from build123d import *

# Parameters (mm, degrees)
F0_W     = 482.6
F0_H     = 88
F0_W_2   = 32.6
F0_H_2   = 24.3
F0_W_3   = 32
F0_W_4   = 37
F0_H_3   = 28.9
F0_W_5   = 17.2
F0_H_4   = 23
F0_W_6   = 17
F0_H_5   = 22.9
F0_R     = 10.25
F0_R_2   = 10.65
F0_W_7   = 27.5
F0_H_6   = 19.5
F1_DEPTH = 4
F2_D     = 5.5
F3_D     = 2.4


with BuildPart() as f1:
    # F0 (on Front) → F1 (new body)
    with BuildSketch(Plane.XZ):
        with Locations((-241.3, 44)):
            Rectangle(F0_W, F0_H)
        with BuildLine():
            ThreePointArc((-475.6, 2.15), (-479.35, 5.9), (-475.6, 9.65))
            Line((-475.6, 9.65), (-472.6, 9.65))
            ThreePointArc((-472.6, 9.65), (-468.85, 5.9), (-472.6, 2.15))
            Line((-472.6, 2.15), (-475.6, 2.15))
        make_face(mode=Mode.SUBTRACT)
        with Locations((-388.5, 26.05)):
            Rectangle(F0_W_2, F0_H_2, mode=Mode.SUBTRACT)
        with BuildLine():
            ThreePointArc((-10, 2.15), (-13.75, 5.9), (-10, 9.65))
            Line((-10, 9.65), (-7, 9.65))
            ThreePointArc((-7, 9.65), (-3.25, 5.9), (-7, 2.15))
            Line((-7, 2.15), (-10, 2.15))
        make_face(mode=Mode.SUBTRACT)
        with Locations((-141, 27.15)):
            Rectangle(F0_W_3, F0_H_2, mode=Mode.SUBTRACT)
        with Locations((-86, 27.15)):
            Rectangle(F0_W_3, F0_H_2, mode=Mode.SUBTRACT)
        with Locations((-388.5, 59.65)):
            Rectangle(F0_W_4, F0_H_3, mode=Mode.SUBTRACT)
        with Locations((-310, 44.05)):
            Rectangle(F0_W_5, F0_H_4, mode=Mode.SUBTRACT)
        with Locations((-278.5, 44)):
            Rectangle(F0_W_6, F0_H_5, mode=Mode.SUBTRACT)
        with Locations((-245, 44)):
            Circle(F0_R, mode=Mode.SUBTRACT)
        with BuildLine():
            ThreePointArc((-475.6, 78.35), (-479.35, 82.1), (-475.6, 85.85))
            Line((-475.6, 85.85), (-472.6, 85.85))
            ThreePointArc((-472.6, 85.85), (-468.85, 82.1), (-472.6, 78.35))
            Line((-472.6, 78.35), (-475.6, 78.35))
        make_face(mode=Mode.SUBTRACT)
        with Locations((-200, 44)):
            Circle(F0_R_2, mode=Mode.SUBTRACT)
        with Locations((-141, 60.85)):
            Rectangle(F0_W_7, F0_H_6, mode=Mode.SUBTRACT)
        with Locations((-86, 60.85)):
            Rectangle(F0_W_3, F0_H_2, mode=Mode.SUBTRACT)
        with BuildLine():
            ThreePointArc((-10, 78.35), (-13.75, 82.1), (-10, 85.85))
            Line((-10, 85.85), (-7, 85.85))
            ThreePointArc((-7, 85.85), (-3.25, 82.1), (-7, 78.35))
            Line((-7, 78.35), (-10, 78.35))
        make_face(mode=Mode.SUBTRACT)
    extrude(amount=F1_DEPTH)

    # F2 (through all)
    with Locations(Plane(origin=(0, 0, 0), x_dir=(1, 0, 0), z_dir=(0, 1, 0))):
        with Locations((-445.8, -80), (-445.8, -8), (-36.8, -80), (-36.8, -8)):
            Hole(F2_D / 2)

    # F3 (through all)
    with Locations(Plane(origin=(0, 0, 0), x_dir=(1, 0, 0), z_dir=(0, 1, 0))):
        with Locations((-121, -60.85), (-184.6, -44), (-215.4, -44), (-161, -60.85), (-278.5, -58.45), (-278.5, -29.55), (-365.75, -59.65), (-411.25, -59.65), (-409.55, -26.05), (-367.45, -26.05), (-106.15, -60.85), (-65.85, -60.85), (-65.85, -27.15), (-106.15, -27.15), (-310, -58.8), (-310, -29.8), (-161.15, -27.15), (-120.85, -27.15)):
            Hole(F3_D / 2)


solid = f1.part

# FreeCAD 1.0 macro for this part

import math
import FreeCAD as App
import Part
import Sketcher

V = App.Vector
Q = App.Units.Quantity


def add_polygon(sketch, points):
    """Adds a closed chain of lines whose ends are joined by coincident constraints."""
    first, n = sketch.GeometryCount, len(points)
    for a, b in zip(points, points[1:] + points[:1]):
        sketch.addGeometry(Part.LineSegment(App.Vector(*a, 0), App.Vector(*b, 0)), False)
    for i in range(n):
        sketch.addConstraint(Sketcher.Constraint("Coincident", first + i, 2, first + (i + 1) % n, 1))

doc = App.newDocument("Part")
body = doc.addObject("PartDesign::Body", "Body")

# Sketch on XZ plane
sketch1 = doc.addObject("Sketcher::SketchObject", "Sketch")
body.addObject(sketch1)
sketch1.AttachmentSupport = (doc.XZ_Plane, [""])
sketch1.MapMode = "FlatFace"
add_polygon(sketch1, [(-482.6, 88), (-482.6, 0), (0, 0), (0, 88)])  # lines 0-3
sketch1.addGeometry(Part.LineSegment(V(-472.6, 2.1, 0), V(-475.6, 2.1, 0)), False)  # 4
sketch1.addGeometry(Part.ArcOfCircle(Part.Circle(V(-475.6, 5.9, 0), V(0, 0, 1), 3.8), math.radians(90), math.radians(270)), False)  # 5
sketch1.addGeometry(Part.LineSegment(V(-475.6, 9.7, 0), V(-472.6, 9.7, 0)), False)  # 6
sketch1.addGeometry(Part.ArcOfCircle(Part.Circle(V(-472.6, 5.9, 0), V(0, 0, 1), 3.8), math.radians(-90), math.radians(90)), False)  # 7
add_polygon(sketch1, [(-372.2, 13.9), (-404.8, 13.9), (-404.8, 38.2), (-372.2, 38.2)])  # lines 8-11
sketch1.addGeometry(Part.LineSegment(V(-7, 2.1, 0), V(-10, 2.1, 0)), False)  # 12
sketch1.addGeometry(Part.ArcOfCircle(Part.Circle(V(-10, 5.9, 0), V(0, 0, 1), 3.8), math.radians(90), math.radians(270)), False)  # 13
sketch1.addGeometry(Part.LineSegment(V(-10, 9.7, 0), V(-7, 9.7, 0)), False)  # 14
sketch1.addGeometry(Part.ArcOfCircle(Part.Circle(V(-7, 5.9, 0), V(0, 0, 1), 3.8), math.radians(-90), math.radians(90)), False)  # 15
add_polygon(sketch1, [(-125, 15), (-157, 15), (-157, 39.3), (-125, 39.3)])  # lines 16-19
add_polygon(sketch1, [(-70, 15), (-102, 15), (-102, 39.3), (-70, 39.3)])  # lines 20-23
add_polygon(sketch1, [(-370, 45.2), (-407, 45.2), (-407, 74.1), (-370, 74.1)])  # lines 24-27
add_polygon(sketch1, [(-301.4, 32.5), (-318.6, 32.5), (-318.6, 55.5), (-301.4, 55.5)])  # lines 28-31
add_polygon(sketch1, [(-270, 32.5), (-287, 32.5), (-287, 55.5), (-270, 55.5)])  # lines 32-35
sketch1.addGeometry(Part.Circle(V(-245, 44, 0), V(0, 0, 1), 10.2), False)  # 36
sketch1.addGeometry(Part.LineSegment(V(-472.6, 78.3, 0), V(-475.6, 78.3, 0)), False)  # 37
sketch1.addGeometry(Part.ArcOfCircle(Part.Circle(V(-475.6, 82.1, 0), V(0, 0, 1), 3.8), math.radians(90), math.radians(270)), False)  # 38
sketch1.addGeometry(Part.LineSegment(V(-475.6, 85.8, 0), V(-472.6, 85.8, 0)), False)  # 39
sketch1.addGeometry(Part.ArcOfCircle(Part.Circle(V(-472.6, 82.1, 0), V(0, 0, 1), 3.8), math.radians(-90), math.radians(90)), False)  # 40
sketch1.addGeometry(Part.Circle(V(-200, 44, 0), V(0, 0, 1), 10.7), False)  # 41
add_polygon(sketch1, [(-127.2, 51.1), (-154.8, 51.1), (-154.8, 70.6), (-127.2, 70.6)])  # lines 42-45
add_polygon(sketch1, [(-70, 48.7), (-102, 48.7), (-102, 73), (-70, 73)])  # lines 46-49
sketch1.addGeometry(Part.LineSegment(V(-7, 78.3, 0), V(-10, 78.3, 0)), False)  # 50
sketch1.addGeometry(Part.ArcOfCircle(Part.Circle(V(-10, 82.1, 0), V(0, 0, 1), 3.8), math.radians(90), math.radians(270)), False)  # 51
sketch1.addGeometry(Part.LineSegment(V(-10, 85.8, 0), V(-7, 85.8, 0)), False)  # 52
sketch1.addGeometry(Part.ArcOfCircle(Part.Circle(V(-7, 82.1, 0), V(0, 0, 1), 3.8), math.radians(-90), math.radians(90)), False)  # 53
sketch1.addConstraint(Sketcher.Constraint("Tangent", 4, 2, 5, 2))
sketch1.addConstraint(Sketcher.Constraint("Tangent", 5, 1, 6, 1))
sketch1.addConstraint(Sketcher.Constraint("Tangent", 6, 2, 7, 2))
sketch1.addConstraint(Sketcher.Constraint("Tangent", 7, 1, 4, 1))
sketch1.addConstraint(Sketcher.Constraint("Tangent", 12, 2, 13, 2))
sketch1.addConstraint(Sketcher.Constraint("Tangent", 13, 1, 14, 1))
sketch1.addConstraint(Sketcher.Constraint("Tangent", 14, 2, 15, 2))
sketch1.addConstraint(Sketcher.Constraint("Tangent", 15, 1, 12, 1))
sketch1.addConstraint(Sketcher.Constraint("Tangent", 37, 2, 38, 2))
sketch1.addConstraint(Sketcher.Constraint("Tangent", 38, 1, 39, 1))
sketch1.addConstraint(Sketcher.Constraint("Tangent", 39, 2, 40, 2))
sketch1.addConstraint(Sketcher.Constraint("Tangent", 40, 1, 37, 1))
sketch1.addConstraint(Sketcher.Constraint("Tangent", 50, 2, 51, 2))
sketch1.addConstraint(Sketcher.Constraint("Tangent", 51, 1, 52, 1))
sketch1.addConstraint(Sketcher.Constraint("Tangent", 52, 2, 53, 2))
sketch1.addConstraint(Sketcher.Constraint("Tangent", 53, 1, 50, 1))
sketch1.addConstraint(Sketcher.Constraint("Vertical", 0))
sketch1.addConstraint(Sketcher.Constraint("Horizontal", 1))
sketch1.addConstraint(Sketcher.Constraint("Vertical", 2))
sketch1.addConstraint(Sketcher.Constraint("Horizontal", 3))
sketch1.addConstraint(Sketcher.Constraint("Horizontal", 4))
sketch1.addConstraint(Sketcher.Constraint("Horizontal", 6))
sketch1.addConstraint(Sketcher.Constraint("Horizontal", 8))
sketch1.addConstraint(Sketcher.Constraint("Vertical", 9))
sketch1.addConstraint(Sketcher.Constraint("Horizontal", 10))
sketch1.addConstraint(Sketcher.Constraint("Vertical", 11))
sketch1.addConstraint(Sketcher.Constraint("Horizontal", 12))
sketch1.addConstraint(Sketcher.Constraint("Horizontal", 14))
sketch1.addConstraint(Sketcher.Constraint("Horizontal", 16))
sketch1.addConstraint(Sketcher.Constraint("Vertical", 17))
sketch1.addConstraint(Sketcher.Constraint("Horizontal", 18))
sketch1.addConstraint(Sketcher.Constraint("Vertical", 19))
sketch1.addConstraint(Sketcher.Constraint("Horizontal", 20))
sketch1.addConstraint(Sketcher.Constraint("Vertical", 21))
sketch1.addConstraint(Sketcher.Constraint("Horizontal", 22))
sketch1.addConstraint(Sketcher.Constraint("Vertical", 23))
sketch1.addConstraint(Sketcher.Constraint("Horizontal", 24))
sketch1.addConstraint(Sketcher.Constraint("Vertical", 25))
sketch1.addConstraint(Sketcher.Constraint("Horizontal", 26))
sketch1.addConstraint(Sketcher.Constraint("Vertical", 27))
sketch1.addConstraint(Sketcher.Constraint("Horizontal", 28))
sketch1.addConstraint(Sketcher.Constraint("Vertical", 29))
sketch1.addConstraint(Sketcher.Constraint("Horizontal", 30))
sketch1.addConstraint(Sketcher.Constraint("Vertical", 31))
sketch1.addConstraint(Sketcher.Constraint("Horizontal", 32))
sketch1.addConstraint(Sketcher.Constraint("Vertical", 33))
sketch1.addConstraint(Sketcher.Constraint("Horizontal", 34))
sketch1.addConstraint(Sketcher.Constraint("Vertical", 35))
sketch1.addConstraint(Sketcher.Constraint("Horizontal", 37))
sketch1.addConstraint(Sketcher.Constraint("Horizontal", 39))
sketch1.addConstraint(Sketcher.Constraint("Horizontal", 42))
sketch1.addConstraint(Sketcher.Constraint("Vertical", 43))
sketch1.addConstraint(Sketcher.Constraint("Horizontal", 44))
sketch1.addConstraint(Sketcher.Constraint("Vertical", 45))
sketch1.addConstraint(Sketcher.Constraint("Horizontal", 46))
sketch1.addConstraint(Sketcher.Constraint("Vertical", 47))
sketch1.addConstraint(Sketcher.Constraint("Horizontal", 48))
sketch1.addConstraint(Sketcher.Constraint("Vertical", 49))
sketch1.addConstraint(Sketcher.Constraint("Horizontal", 50))
sketch1.addConstraint(Sketcher.Constraint("Horizontal", 52))
sketch1.addConstraint(Sketcher.Constraint("Coincident", 1, 2, -1, 1))
sketch1.addConstraint(Sketcher.Constraint("Equal", 7, 13))
sketch1.addConstraint(Sketcher.Constraint("Equal", 15, 38))
sketch1.addConstraint(Sketcher.Constraint("Equal", 40, 51))
sketch1.addConstraint(Sketcher.Constraint("Horizontal", 7, 3, 13, 3))
sketch1.addConstraint(Sketcher.Constraint("Horizontal", 36, 3, 41, 3))
sketch1.addConstraint(Sketcher.Constraint("Horizontal", 40, 3, 51, 3))
sketch1.addConstraint(Sketcher.Constraint("Horizontal", 19, 2, 20, 2))
sketch1.addConstraint(Sketcher.Constraint("Horizontal", 18, 2, 21, 2))
sketch1.addConstraint(Sketcher.Constraint("Horizontal", 31, 2, 32, 2))
sketch1.addConstraint(Sketcher.Constraint("Vertical", 5, 3, 38, 3))
sketch1.addConstraint(Sketcher.Constraint("Vertical", 7, 3, 40, 3))
sketch1.addConstraint(Sketcher.Constraint("Vertical", 13, 3, 51, 3))
sketch1.addConstraint(Sketcher.Constraint("Vertical", 15, 3, 53, 3))
sketch1.addConstraint(Sketcher.Constraint("Vertical", 21, 2, 46, 2))
sketch1.addConstraint(Sketcher.Constraint("Vertical", 23, 2, 48, 2))
sketch1.addConstraint(Sketcher.Constraint("Equal", 6, 12))
sketch1.addConstraint(Sketcher.Constraint("Equal", 18, 20))
sketch1.addConstraint(Sketcher.Constraint("Equal", 11, 17))
sketch1.addConstraint(Sketcher.Constraint("Equal", 23, 47))
sketch1.addConstraint(Sketcher.Constraint("Diameter", 36, Q("20.5 mm")))
sketch1.addConstraint(Sketcher.Constraint("Diameter", 41, Q("21.3 mm")))
sketch1.addConstraint(Sketcher.Constraint("DistanceX", 4, 2, 4, 1, Q("3 mm")))
sketch1.addConstraint(Sketcher.Constraint("DistanceX", 16, 2, 16, 1, Q("32 mm")))
sketch1.addConstraint(Sketcher.Constraint("DistanceX", 24, 2, 24, 1, Q("37 mm")))
sketch1.addConstraint(Sketcher.Constraint("DistanceX", 32, 2, 32, 1, Q("17 mm")))
sketch1.addConstraint(Sketcher.Constraint("DistanceY", 0, 2, 0, 1, Q("88 mm")))
sketch1.addConstraint(Sketcher.Constraint("DistanceY", 29, 1, 29, 2, Q("23 mm")))
sketch1.addConstraint(Sketcher.Constraint("Radius", 5, Q("3.75 mm")))
sketch1.addConstraint(Sketcher.Constraint("DistanceX", 1, 1, 1, 2, Q("482.6 mm")))
sketch1.addConstraint(Sketcher.Constraint("DistanceX", 8, 2, 8, 1, Q("32.6 mm")))
sketch1.addConstraint(Sketcher.Constraint("DistanceX", 28, 2, 28, 1, Q("17.2 mm")))
sketch1.addConstraint(Sketcher.Constraint("DistanceX", 42, 2, 42, 1, Q("27.5 mm")))
sketch1.addConstraint(Sketcher.Constraint("DistanceY", 9, 1, 9, 2, Q("24.3 mm")))
sketch1.addConstraint(Sketcher.Constraint("DistanceY", 25, 1, 25, 2, Q("28.9 mm")))
sketch1.addConstraint(Sketcher.Constraint("DistanceY", 33, 1, 33, 2, Q("22.9 mm")))
sketch1.addConstraint(Sketcher.Constraint("DistanceY", 43, 1, 43, 2, Q("19.5 mm")))
sketch1.addConstraint(Sketcher.Constraint("DistanceX", 13, 3, -1, 1, Q("10 mm")))
sketch1.addConstraint(Sketcher.Constraint("DistanceX", 36, 3, -1, 1, Q("245 mm")))
sketch1.addConstraint(Sketcher.Constraint("DistanceY", -1, 1, 36, 3, Q("44 mm")))
sketch1.addConstraint(Sketcher.Constraint("DistanceX", 41, 3, -1, 1, Q("200 mm")))
sketch1.addConstraint(Sketcher.Constraint("DistanceX", 16, 2, -1, 1, Q("157 mm")))
sketch1.addConstraint(Sketcher.Constraint("DistanceY", -1, 1, 16, 2, Q("15 mm")))
sketch1.addConstraint(Sketcher.Constraint("DistanceX", 20, 2, -1, 1, Q("102 mm")))
sketch1.addConstraint(Sketcher.Constraint("DistanceX", 24, 2, -1, 1, Q("407 mm")))
sketch1.addConstraint(Sketcher.Constraint("DistanceX", 32, 2, -1, 1, Q("287 mm")))
sketch1.addConstraint(Sketcher.Constraint("DistanceY", -1, 1, 47, 2, Q("73 mm")))
sketch1.addConstraint(Sketcher.Constraint("DistanceX", 5, 3, -1, 1, Q("475.6 mm")))
sketch1.addConstraint(Sketcher.Constraint("DistanceY", -1, 1, 5, 3, Q("5.9 mm")))
sketch1.addConstraint(Sketcher.Constraint("DistanceY", -1, 1, 38, 3, Q("82.1 mm")))
sketch1.addConstraint(Sketcher.Constraint("DistanceX", 8, 2, -1, 1, Q("404.8 mm")))
sketch1.addConstraint(Sketcher.Constraint("DistanceY", -1, 1, 8, 2, Q("13.9 mm")))
sketch1.addConstraint(Sketcher.Constraint("DistanceY", -1, 1, 24, 2, Q("45.2 mm")))
sketch1.addConstraint(Sketcher.Constraint("DistanceX", 28, 2, -1, 1, Q("318.6 mm")))
sketch1.addConstraint(Sketcher.Constraint("DistanceY", -1, 1, 42, 2, Q("51.1 mm")))
sketch1.addConstraint(Sketcher.Constraint("DistanceY", -1, 1, 28, 2, Q("32.55 mm")))
sketch1.addConstraint(Sketcher.Constraint("DistanceX", 42, 2, -1, 1, Q("154.75 mm")))
pad1 = doc.addObject("PartDesign::Pad", "Pad")
body.addObject(pad1)
pad1.Profile = sketch1
pad1.Length = 4

# Sketch on XZ plane
sketch2 = doc.addObject("Sketcher::SketchObject", "Sketch001")
body.addObject(sketch2)
sketch2.AttachmentSupport = (doc.XZ_Plane, [""])
sketch2.MapMode = "FlatFace"
sketch2.addGeometry(Part.Circle(V(-445.8, 80, 0), V(0, 0, 1), 2.8), False)
sketch2.addGeometry(Part.Circle(V(-445.8, 8, 0), V(0, 0, 1), 2.8), False)
sketch2.addGeometry(Part.Circle(V(-36.8, 80, 0), V(0, 0, 1), 2.8), False)
sketch2.addGeometry(Part.Circle(V(-36.8, 8, 0), V(0, 0, 1), 2.8), False)
sketch2.addConstraint(Sketcher.Constraint("Equal", 0, 1))
sketch2.addConstraint(Sketcher.Constraint("Equal", 1, 2))
sketch2.addConstraint(Sketcher.Constraint("Equal", 2, 3))
sketch2.addConstraint(Sketcher.Constraint("Horizontal", 0, 3, 2, 3))
sketch2.addConstraint(Sketcher.Constraint("Horizontal", 1, 3, 3, 3))
sketch2.addConstraint(Sketcher.Constraint("Vertical", 0, 3, 1, 3))
sketch2.addConstraint(Sketcher.Constraint("Vertical", 2, 3, 3, 3))
sketch2.addConstraint(Sketcher.Constraint("Diameter", 0, Q("5.5 mm")))
sketch2.addConstraint(Sketcher.Constraint("DistanceY", -1, 1, 0, 3, Q("80 mm")))
sketch2.addConstraint(Sketcher.Constraint("DistanceY", -1, 1, 1, 3, Q("8 mm")))
sketch2.addConstraint(Sketcher.Constraint("DistanceX", 0, 3, 2, 3, Q("409 mm")))
sketch2.addConstraint(Sketcher.Constraint("DistanceX", 0, 3, -1, 1, Q("445.8 mm")))
doc.recompute()
hole = doc.addObject("PartDesign::Hole", "Hole")
body.addObject(hole)
hole.Profile = sketch2
hole.ThreadType = "None"
hole.Diameter = 5.5
hole.DepthType = "ThroughAll"
hole.Reversed = True

# Sketch on XZ plane
sketch3 = doc.addObject("Sketcher::SketchObject", "Sketch002")
body.addObject(sketch3)
sketch3.AttachmentSupport = (doc.XZ_Plane, [""])
sketch3.MapMode = "FlatFace"
sketch3.addGeometry(Part.Circle(V(-121, 60.9, 0), V(0, 0, 1), 1.2), False)
sketch3.addGeometry(Part.Circle(V(-184.6, 44, 0), V(0, 0, 1), 1.2), False)
sketch3.addGeometry(Part.Circle(V(-215.4, 44, 0), V(0, 0, 1), 1.2), False)
sketch3.addGeometry(Part.Circle(V(-161, 60.9, 0), V(0, 0, 1), 1.2), False)
sketch3.addGeometry(Part.Circle(V(-278.5, 58.5, 0), V(0, 0, 1), 1.2), False)
sketch3.addGeometry(Part.Circle(V(-278.5, 29.6, 0), V(0, 0, 1), 1.2), False)
sketch3.addGeometry(Part.Circle(V(-365.8, 59.6, 0), V(0, 0, 1), 1.2), False)
sketch3.addGeometry(Part.Circle(V(-411.2, 59.6, 0), V(0, 0, 1), 1.2), False)
sketch3.addGeometry(Part.Circle(V(-409.6, 26.1, 0), V(0, 0, 1), 1.2), False)
sketch3.addGeometry(Part.Circle(V(-367.4, 26.1, 0), V(0, 0, 1), 1.2), False)
sketch3.addGeometry(Part.Circle(V(-106.2, 60.9, 0), V(0, 0, 1), 1.2), False)
sketch3.addGeometry(Part.Circle(V(-65.8, 60.9, 0), V(0, 0, 1), 1.2), False)
sketch3.addGeometry(Part.Circle(V(-65.8, 27.1, 0), V(0, 0, 1), 1.2), False)
sketch3.addGeometry(Part.Circle(V(-106.2, 27.1, 0), V(0, 0, 1), 1.2), False)
sketch3.addGeometry(Part.Circle(V(-310, 58.8, 0), V(0, 0, 1), 1.2), False)
sketch3.addGeometry(Part.Circle(V(-310, 29.8, 0), V(0, 0, 1), 1.2), False)
sketch3.addGeometry(Part.Circle(V(-161.2, 27.1, 0), V(0, 0, 1), 1.2), False)
sketch3.addGeometry(Part.Circle(V(-120.8, 27.1, 0), V(0, 0, 1), 1.2), False)
sketch3.addConstraint(Sketcher.Constraint("Equal", 0, 1))
sketch3.addConstraint(Sketcher.Constraint("Equal", 1, 2))
sketch3.addConstraint(Sketcher.Constraint("Equal", 2, 3))
sketch3.addConstraint(Sketcher.Constraint("Equal", 3, 4))
sketch3.addConstraint(Sketcher.Constraint("Equal", 4, 5))
sketch3.addConstraint(Sketcher.Constraint("Equal", 5, 6))
sketch3.addConstraint(Sketcher.Constraint("Equal", 6, 7))
sketch3.addConstraint(Sketcher.Constraint("Equal", 7, 8))
sketch3.addConstraint(Sketcher.Constraint("Equal", 8, 9))
sketch3.addConstraint(Sketcher.Constraint("Equal", 9, 10))
sketch3.addConstraint(Sketcher.Constraint("Equal", 10, 11))
sketch3.addConstraint(Sketcher.Constraint("Equal", 11, 12))
sketch3.addConstraint(Sketcher.Constraint("Equal", 12, 13))
sketch3.addConstraint(Sketcher.Constraint("Equal", 13, 14))
sketch3.addConstraint(Sketcher.Constraint("Equal", 14, 15))
sketch3.addConstraint(Sketcher.Constraint("Equal", 15, 16))
sketch3.addConstraint(Sketcher.Constraint("Equal", 16, 17))
sketch3.addConstraint(Sketcher.Constraint("Horizontal", 1, 3, 2, 3))
sketch3.addConstraint(Sketcher.Constraint("Horizontal", 0, 3, 3, 3))
sketch3.addConstraint(Sketcher.Constraint("Horizontal", 6, 3, 7, 3))
sketch3.addConstraint(Sketcher.Constraint("Horizontal", 8, 3, 9, 3))
sketch3.addConstraint(Sketcher.Constraint("Horizontal", 3, 3, 10, 3))
sketch3.addConstraint(Sketcher.Constraint("Horizontal", 10, 3, 11, 3))
sketch3.addConstraint(Sketcher.Constraint("Horizontal", 12, 3, 13, 3))
sketch3.addConstraint(Sketcher.Constraint("Horizontal", 13, 3, 16, 3))
sketch3.addConstraint(Sketcher.Constraint("Horizontal", 16, 3, 17, 3))
sketch3.addConstraint(Sketcher.Constraint("Vertical", 4, 3, 5, 3))
sketch3.addConstraint(Sketcher.Constraint("Vertical", 11, 3, 12, 3))
sketch3.addConstraint(Sketcher.Constraint("Vertical", 10, 3, 13, 3))
sketch3.addConstraint(Sketcher.Constraint("Vertical", 14, 3, 15, 3))
sketch3.addConstraint(Sketcher.Constraint("Diameter", 0, Q("2.4 mm")))
sketch3.addConstraint(Sketcher.Constraint("DistanceX", 0, 3, -1, 1, Q("121 mm")))
sketch3.addConstraint(Sketcher.Constraint("DistanceY", -1, 1, 1, 3, Q("44 mm")))
sketch3.addConstraint(Sketcher.Constraint("DistanceX", 3, 3, -1, 1, Q("161 mm")))
sketch3.addConstraint(Sketcher.Constraint("DistanceX", 14, 3, -1, 1, Q("310 mm")))
sketch3.addConstraint(Sketcher.Constraint("DistanceY", 15, 3, 14, 3, Q("29 mm")))
sketch3.addConstraint(Sketcher.Constraint("DistanceX", 16, 3, 13, 3, Q("55 mm")))
sketch3.addConstraint(Sketcher.Constraint("DistanceX", 1, 3, -1, 1, Q("184.6 mm")))
sketch3.addConstraint(Sketcher.Constraint("DistanceX", 2, 3, -1, 1, Q("215.4 mm")))
sketch3.addConstraint(Sketcher.Constraint("DistanceX", 4, 3, -1, 1, Q("278.5 mm")))
sketch3.addConstraint(Sketcher.Constraint("DistanceY", -1, 1, 14, 3, Q("58.8 mm")))
sketch3.addConstraint(Sketcher.Constraint("DistanceY", 4, 3, 3, 3, Q("2.4 mm")))
sketch3.addConstraint(Sketcher.Constraint("DistanceY", 5, 3, 4, 3, Q("28.9 mm")))
sketch3.addConstraint(Sketcher.Constraint("DistanceY", 4, 3, 6, 3, Q("1.2 mm")))
sketch3.addConstraint(Sketcher.Constraint("DistanceX", 7, 3, 6, 3, Q("45.5 mm")))
sketch3.addConstraint(Sketcher.Constraint("DistanceX", 7, 3, 8, 3, Q("1.7 mm")))
sketch3.addConstraint(Sketcher.Constraint("DistanceY", 8, 3, 7, 3, Q("33.6 mm")))
sketch3.addConstraint(Sketcher.Constraint("DistanceX", 9, 3, 6, 3, Q("1.7 mm")))
sketch3.addConstraint(Sketcher.Constraint("DistanceX", 10, 3, 11, 3, Q("40.3 mm")))
sketch3.addConstraint(Sketcher.Constraint("DistanceY", 12, 3, 11, 3, Q("33.7 mm")))
sketch3.addConstraint(Sketcher.Constraint("DistanceX", 17, 3, 13, 3, Q("14.7 mm")))
sketch3.addConstraint(Sketcher.Constraint("DistanceY", -1, 1, 0, 3, Q("60.85 mm")))
sketch3.addConstraint(Sketcher.Constraint("DistanceX", 6, 3, -1, 1, Q("365.75 mm")))
sketch3.addConstraint(Sketcher.Constraint("DistanceX", 10, 3, -1, 1, Q("106.15 mm")))
doc.recompute()
hole2 = doc.addObject("PartDesign::Hole", "Hole001")
body.addObject(hole2)
hole2.Profile = sketch3
hole2.ThreadType = "None"
hole2.Diameter = 2.4
hole2.DepthType = "ThroughAll"
hole2.Reversed = True

doc.recompute()
